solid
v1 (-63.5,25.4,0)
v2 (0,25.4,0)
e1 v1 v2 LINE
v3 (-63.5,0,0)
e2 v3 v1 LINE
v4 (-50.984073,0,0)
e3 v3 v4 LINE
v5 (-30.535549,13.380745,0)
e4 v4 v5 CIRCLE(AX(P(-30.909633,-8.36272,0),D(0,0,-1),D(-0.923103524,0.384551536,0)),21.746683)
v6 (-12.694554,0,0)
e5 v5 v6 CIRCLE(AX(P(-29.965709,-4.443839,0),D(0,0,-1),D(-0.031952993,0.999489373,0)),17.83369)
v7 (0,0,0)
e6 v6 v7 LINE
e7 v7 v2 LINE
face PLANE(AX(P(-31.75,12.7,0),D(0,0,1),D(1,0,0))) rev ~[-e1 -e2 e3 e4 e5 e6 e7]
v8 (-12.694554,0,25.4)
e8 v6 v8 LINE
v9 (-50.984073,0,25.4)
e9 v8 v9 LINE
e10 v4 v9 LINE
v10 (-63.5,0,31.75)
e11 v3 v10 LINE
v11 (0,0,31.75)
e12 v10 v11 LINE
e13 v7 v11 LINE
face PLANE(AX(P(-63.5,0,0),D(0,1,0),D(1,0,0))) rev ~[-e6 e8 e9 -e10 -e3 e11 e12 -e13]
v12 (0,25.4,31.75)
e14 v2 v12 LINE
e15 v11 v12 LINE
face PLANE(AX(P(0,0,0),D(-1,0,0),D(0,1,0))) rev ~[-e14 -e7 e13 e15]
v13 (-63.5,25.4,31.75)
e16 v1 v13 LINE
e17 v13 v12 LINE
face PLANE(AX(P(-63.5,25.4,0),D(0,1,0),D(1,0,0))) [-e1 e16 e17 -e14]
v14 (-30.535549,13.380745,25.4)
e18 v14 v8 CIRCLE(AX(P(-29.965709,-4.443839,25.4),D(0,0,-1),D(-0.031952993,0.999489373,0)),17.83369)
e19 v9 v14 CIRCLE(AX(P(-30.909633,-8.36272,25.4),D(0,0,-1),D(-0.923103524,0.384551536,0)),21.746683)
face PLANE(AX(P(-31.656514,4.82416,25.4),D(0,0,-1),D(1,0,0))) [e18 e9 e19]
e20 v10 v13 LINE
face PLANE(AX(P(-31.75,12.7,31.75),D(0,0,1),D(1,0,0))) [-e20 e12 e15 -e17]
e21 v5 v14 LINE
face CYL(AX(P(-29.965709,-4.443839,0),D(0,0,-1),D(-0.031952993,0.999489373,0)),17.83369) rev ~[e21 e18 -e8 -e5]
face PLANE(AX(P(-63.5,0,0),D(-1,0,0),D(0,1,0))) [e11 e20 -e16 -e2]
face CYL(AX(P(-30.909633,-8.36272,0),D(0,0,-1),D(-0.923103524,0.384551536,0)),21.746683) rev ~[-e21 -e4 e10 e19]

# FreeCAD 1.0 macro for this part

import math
import FreeCAD as App
import Part
import Sketcher
Q = App.Units.Quantity


def add_polygon(sketch, points):
    """Adds a closed chain of lines whose ends are joined by coincident constraints."""
    first, n = sketch.GeometryCount, len(points)
    for a, b in zip(points, points[1:] + points[:1]):
        sketch.addGeometry(Part.LineSegment(App.Vector(*a, 0), App.Vector(*b, 0)), False)
    for i in range(n):
        sketch.addConstraint(Sketcher.Constraint("Coincident", first + i, 2, first + (i + 1) % n, 1))

doc = App.newDocument("Part")
params = doc.addObject("Spreadsheet::Sheet", "Params")
for row, (alias, value) in enumerate([
    ("sketch1_height", "1 in"),
    ("sketch1_width", "2.5 in"),
    ("pad1_length", "1.25 in"),
    ("pocket1_length", "1 in"),
], start=1):
    params.set(f"A{row}", alias)
    params.set(f"B{row}", "=" + value)
    params.setAlias(f"B{row}", alias)

body = doc.addObject("PartDesign::Body", "Body")

# Sketch on XY plane
sketch1 = body.newObject("Sketcher::SketchObject", "Sketch")
sketch1.AttachmentSupport = (doc.getObject("XY_Plane"), [""])
sketch1.MapMode = "FlatFace"
add_polygon(sketch1, [(-63.5, 25.4), (-63.5, 0), (0, 0), (0, 25.4)])  # lines 0-3
sketch1.addConstraint(Sketcher.Constraint("Vertical", 0))
sketch1.addConstraint(Sketcher.Constraint("Horizontal", 1))
sketch1.addConstraint(Sketcher.Constraint("Vertical", 2))
sketch1.addConstraint(Sketcher.Constraint("Horizontal", 3))
sketch1.addConstraint(Sketcher.Constraint("Coincident", 1, 2, -1, 1))
sketch1.addConstraint(Sketcher.Constraint("DistanceY", 0, 2, 0, 1, Q("1 in")))
sketch1.addConstraint(Sketcher.Constraint("DistanceX", 1, 1, 1, 2, Q("2.5 in")))
sketch1.setExpression("Constraints[9]", "Params.sketch1_height")
sketch1.setExpression("Constraints[10]", "Params.sketch1_width")
pad1 = body.newObject("PartDesign::Pad", "Pad")
pad1.Profile = sketch1
pad1.setExpression("Length", "Params.pad1_length")

# Sketch on XY plane
sketch2 = body.newObject("Sketcher::SketchObject", "Sketch001")
sketch2.AttachmentSupport = (doc.getObject("XY_Plane"), [""])
sketch2.MapMode = "FlatFace"
sketch2.addGeometry(Part.ArcOfCircle(Part.Circle(App.Vector(-30.909633, -8.36272, 0), App.Vector(0, 0, 1), 21.746683), math.radians(89.014355), math.radians(157.384098)), False)
sketch2.addGeometry(Part.ArcOfCircle(Part.Circle(App.Vector(-29.965709, -4.443839, 0), App.Vector(0, 0, 1), 17.83369), math.radians(14.429127), math.radians(91.831083)), False)
sketch2.addGeometry(Part.LineSegment(App.Vector(-12.694554, 0, 0), App.Vector(-50.984073, 0, 0)), False)
sketch2.addConstraint(Sketcher.Constraint("Coincident", 0, 1, 1, 2))
sketch2.addConstraint(Sketcher.Constraint("Coincident", 1, 1, 2, 1))
sketch2.addConstraint(Sketcher.Constraint("Coincident", 2, 2, 0, 2))
sketch2.addConstraint(Sketcher.Constraint("Horizontal", 2))
sketch2.addConstraint(Sketcher.Constraint("PointOnObject", 1, 1, -1))
sketch2.addConstraint(Sketcher.Constraint("Radius", 1, 17.83369))
sketch2.addConstraint(Sketcher.Constraint("Radius", 0, 21.746683))
sketch2.addConstraint(Sketcher.Constraint("DistanceX", 2, 2, 2, 1, 38.289519))
sketch2.addConstraint(Sketcher.Constraint("DistanceY", 0, 3, -1, 1, 8.36272))
sketch2.addConstraint(Sketcher.Constraint("DistanceX", 1, 3, -1, 1, 29.965709))
sketch2.addConstraint(Sketcher.Constraint("DistanceY", 1, 3, -1, 1, 4.443839))
pocket1 = body.newObject("PartDesign::Pocket", "Pocket")
pocket1.Profile = sketch2
pocket1.setExpression("Length", "Params.pocket1_length")
pocket1.Reversed = True

doc.recompute()
